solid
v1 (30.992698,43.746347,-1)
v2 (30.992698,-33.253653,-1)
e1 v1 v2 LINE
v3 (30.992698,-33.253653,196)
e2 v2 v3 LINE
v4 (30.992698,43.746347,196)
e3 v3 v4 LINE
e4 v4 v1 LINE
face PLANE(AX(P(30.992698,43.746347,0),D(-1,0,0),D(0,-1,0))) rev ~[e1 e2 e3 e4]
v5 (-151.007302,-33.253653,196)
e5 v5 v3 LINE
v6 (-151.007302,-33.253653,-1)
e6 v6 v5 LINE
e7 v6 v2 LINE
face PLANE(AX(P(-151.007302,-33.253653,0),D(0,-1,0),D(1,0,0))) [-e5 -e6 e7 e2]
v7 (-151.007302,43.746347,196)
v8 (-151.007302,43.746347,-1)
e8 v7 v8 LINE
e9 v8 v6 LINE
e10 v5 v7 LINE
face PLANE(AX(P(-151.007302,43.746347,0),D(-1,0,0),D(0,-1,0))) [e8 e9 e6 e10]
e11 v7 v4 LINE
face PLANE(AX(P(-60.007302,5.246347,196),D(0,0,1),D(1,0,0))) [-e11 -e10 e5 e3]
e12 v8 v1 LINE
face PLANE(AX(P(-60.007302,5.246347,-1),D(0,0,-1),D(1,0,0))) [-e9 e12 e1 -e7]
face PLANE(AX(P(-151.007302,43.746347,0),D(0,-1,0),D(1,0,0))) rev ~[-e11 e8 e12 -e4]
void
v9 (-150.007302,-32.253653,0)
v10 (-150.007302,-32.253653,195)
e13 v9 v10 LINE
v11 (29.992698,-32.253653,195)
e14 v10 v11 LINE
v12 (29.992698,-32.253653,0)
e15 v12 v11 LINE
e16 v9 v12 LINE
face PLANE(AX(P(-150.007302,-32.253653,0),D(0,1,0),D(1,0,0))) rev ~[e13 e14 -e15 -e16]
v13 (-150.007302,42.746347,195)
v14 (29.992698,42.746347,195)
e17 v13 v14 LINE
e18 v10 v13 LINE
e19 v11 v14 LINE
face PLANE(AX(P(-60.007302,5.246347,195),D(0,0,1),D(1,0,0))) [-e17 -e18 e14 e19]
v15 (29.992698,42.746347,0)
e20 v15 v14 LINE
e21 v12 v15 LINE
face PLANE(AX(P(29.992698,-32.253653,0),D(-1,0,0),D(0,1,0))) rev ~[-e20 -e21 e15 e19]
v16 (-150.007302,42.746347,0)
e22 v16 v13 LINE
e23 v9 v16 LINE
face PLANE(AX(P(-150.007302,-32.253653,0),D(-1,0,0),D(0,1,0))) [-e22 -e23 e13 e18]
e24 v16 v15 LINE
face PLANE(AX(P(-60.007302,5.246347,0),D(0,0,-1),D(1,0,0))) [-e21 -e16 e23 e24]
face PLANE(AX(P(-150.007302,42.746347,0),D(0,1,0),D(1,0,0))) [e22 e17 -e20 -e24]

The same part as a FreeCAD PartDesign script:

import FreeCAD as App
import Part
import Sketcher

V = App.Vector


def add_polygon(sketch, points):
    """Adds a closed chain of lines whose ends are joined by coincident constraints."""
    first, n = sketch.GeometryCount, len(points)
    for a, b in zip(points, points[1:] + points[:1]):
        sketch.addGeometry(Part.LineSegment(App.Vector(*a, 0), App.Vector(*b, 0)), False)
    for i in range(n):
        sketch.addConstraint(Sketcher.Constraint("Coincident", first + i, 2, first + (i + 1) % n, 1))

doc = App.newDocument("Part")
body = doc.addObject("PartDesign::Body", "Body")

sketch1 = doc.addObject("Sketcher::SketchObject", "Sketch")
body.addObject(sketch1)
sketch1.AttachmentSupport = (doc.XY_Plane, [""])
sketch1.MapMode = "FlatFace"
add_polygon(sketch1, [(-151, 44), (-151, -33), (31, -33), (31, 44)])
add_polygon(sketch1, [(30, -32), (-150, -32), (-150, 43), (30, 43)])
sketch1.addConstraint([
    Sketcher.Constraint("Vertical", 0),
    Sketcher.Constraint("Horizontal", 1),
    Sketcher.Constraint("Vertical", 2),
    Sketcher.Constraint("Horizontal", 3),
    Sketcher.Constraint("Horizontal", 4),
    Sketcher.Constraint("Vertical", 5),
    Sketcher.Constraint("Horizontal", 6),
    Sketcher.Constraint("Vertical", 7),
    Sketcher.Constraint("DistanceX", 1, 1, 1, 2, 182.0),
    Sketcher.Constraint("DistanceX", 4, 2, 4, 1, 180.0),
    Sketcher.Constraint("DistanceY", 0, 2, 0, 1, 77.0),
    Sketcher.Constraint("DistanceY", 5, 1, 5, 2, 75.0),
    Sketcher.Constraint("DistanceX", 0, 2, 4, 2, 1.0),
    Sketcher.Constraint("DistanceY", 0, 2, 4, 2, 1.0),
    Sketcher.Constraint("DistanceX", 0, 2, -1, 1, 151.007302),
    Sketcher.Constraint("DistanceY", 0, 2, -1, 1, 33.253653),
])
pad1 = doc.addObject("PartDesign::Pad", "Pad")
body.addObject(pad1)
pad1.Profile = sketch1
pad1.Length = 195

sketch2 = doc.addObject("Sketcher::SketchObject", "Sketch001")
body.addObject(sketch2)
sketch2.AttachmentSupport = (doc.XY_Plane, [""])
sketch2.MapMode = "FlatFace"
sketch2.AttachmentOffset = App.Placement(V(0, 0, 195), App.Rotation())
add_polygon(sketch2, [(-151, 44), (-151, -33), (31, -33), (31, 44)])
sketch2.addConstraint([
    Sketcher.Constraint("Vertical", 0),
    Sketcher.Constraint("Horizontal", 1),
    Sketcher.Constraint("Vertical", 2),
    Sketcher.Constraint("Horizontal", 3),
    Sketcher.Constraint("DistanceX", 1, 1, 1, 2, 182.0),
    Sketcher.Constraint("DistanceY", 0, 2, 0, 1, 77.0),
    Sketcher.Constraint("DistanceX", 0, 2, -1, 1, 151.007302),
    Sketcher.Constraint("DistanceY", 0, 2, -1, 1, 33.253653),
])
pad2 = doc.addObject("PartDesign::Pad", "Pad001")
body.addObject(pad2)
pad2.Profile = sketch2
pad2.Length = 1

sketch3 = doc.addObject("Sketcher::SketchObject", "Sketch002")
body.addObject(sketch3)
sketch3.AttachmentSupport = (doc.XY_Plane, [""])
sketch3.MapMode = "FlatFace"
add_polygon(sketch3, [(-151, -33), (-151, 44), (31, 44), (31, -33)])
sketch3.addConstraint([
    Sketcher.Constraint("Vertical", 0),
    Sketcher.Constraint("Horizontal", 1),
    Sketcher.Constraint("Vertical", 2),
    Sketcher.Constraint("Horizontal", 3),
    Sketcher.Constraint("DistanceX", 1, 1, 1, 2, 182.0),
    Sketcher.Constraint("DistanceY", 0, 1, 0, 2, 77.0),
    Sketcher.Constraint("DistanceX", 0, 2, -1, 1, 151.007302),
    Sketcher.Constraint("DistanceY", -1, 1, 0, 2, 43.746347),
])
pad3 = doc.addObject("PartDesign::Pad", "Pad002")
body.addObject(pad3)
pad3.Profile = sketch3
pad3.Length = 1
pad3.Reversed = True

doc.recompute()
